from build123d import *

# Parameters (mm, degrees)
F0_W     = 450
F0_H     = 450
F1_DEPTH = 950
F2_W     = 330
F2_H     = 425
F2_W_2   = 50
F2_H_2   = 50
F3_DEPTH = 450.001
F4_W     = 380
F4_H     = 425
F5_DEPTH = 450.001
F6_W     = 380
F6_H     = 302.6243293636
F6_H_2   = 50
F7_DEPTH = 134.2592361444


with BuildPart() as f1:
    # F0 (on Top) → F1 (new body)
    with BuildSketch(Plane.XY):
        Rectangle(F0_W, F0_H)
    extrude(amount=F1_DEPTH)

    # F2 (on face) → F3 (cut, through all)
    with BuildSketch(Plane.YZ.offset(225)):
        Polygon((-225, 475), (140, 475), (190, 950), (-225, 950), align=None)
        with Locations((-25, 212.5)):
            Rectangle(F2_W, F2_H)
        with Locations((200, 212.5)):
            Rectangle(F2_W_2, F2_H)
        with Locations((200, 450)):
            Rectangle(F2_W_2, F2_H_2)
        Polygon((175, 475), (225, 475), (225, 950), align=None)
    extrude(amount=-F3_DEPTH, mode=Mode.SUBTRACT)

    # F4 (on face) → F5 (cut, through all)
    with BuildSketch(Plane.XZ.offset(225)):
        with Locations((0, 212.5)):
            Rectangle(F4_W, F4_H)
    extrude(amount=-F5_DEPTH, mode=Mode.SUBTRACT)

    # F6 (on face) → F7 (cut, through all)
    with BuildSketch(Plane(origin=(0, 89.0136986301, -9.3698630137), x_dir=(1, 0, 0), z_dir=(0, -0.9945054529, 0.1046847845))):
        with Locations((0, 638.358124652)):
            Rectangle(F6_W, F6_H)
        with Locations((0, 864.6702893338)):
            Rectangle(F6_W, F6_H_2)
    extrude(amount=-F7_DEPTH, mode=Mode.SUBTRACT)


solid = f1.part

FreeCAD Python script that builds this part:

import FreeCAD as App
import Part
import Sketcher
Q = App.Units.Quantity


def add_polygon(sketch, points):
    """Adds a closed chain of lines whose ends are joined by coincident constraints."""
    first, n = sketch.GeometryCount, len(points)
    for a, b in zip(points, points[1:] + points[:1]):
        sketch.addGeometry(Part.LineSegment(App.Vector(*a, 0), App.Vector(*b, 0)), False)
    for i in range(n):
        sketch.addConstraint(Sketcher.Constraint("Coincident", first + i, 2, first + (i + 1) % n, 1))

doc = App.newDocument("Part")
body = doc.addObject("PartDesign::Body", "Body")

# Sketch on XY plane
sketch1 = body.newObject("Sketcher::SketchObject", "Sketch")
sketch1.AttachmentSupport = (doc.getObject("XY_Plane"), [""])
sketch1.MapMode = "FlatFace"
add_polygon(sketch1, [(-225, 225), (-225, -225), (225, -225), (225, 225)])  # lines 0-3
sketch1.addConstraint([
    Sketcher.Constraint("Vertical", 0),
    Sketcher.Constraint("Horizontal", 1),
    Sketcher.Constraint("Vertical", 2),
    Sketcher.Constraint("Horizontal", 3),
    Sketcher.Constraint("Symmetric", 0, 2, 2, 2, -1, 1),
    Sketcher.Constraint("Equal", 3, 0),
    Sketcher.Constraint("DistanceX", 1, 1, 1, 2, Q("450 mm")),
])
pad1 = body.newObject("PartDesign::Pad", "Pad")
pad1.Profile = sketch1
pad1.Length = 950

# Sketch on YZ plane
sketch2 = body.newObject("Sketcher::SketchObject", "Sketch001")
sketch2.AttachmentSupport = (doc.getObject("YZ_Plane"), [""])
sketch2.MapMode = "FlatFace"
sketch2.AttachmentOffset = App.Placement(App.Vector(0, 0, 225), App.Rotation())
add_polygon(sketch2, [(-225, 475), (140, 475), (190, 950), (-225, 950)])  # lines 0-3
add_polygon(sketch2, [(-190, 425), (-190, 0), (140, 0), (140, 425)])  # lines 4-7
add_polygon(sketch2, [(175, 0), (225, 0), (225, 950), (175, 475)])  # lines 8-11
sketch2.addConstraint([
    Sketcher.Constraint("Horizontal", 0),
    Sketcher.Constraint("Horizontal", 2),
    Sketcher.Constraint("Vertical", 3),
    Sketcher.Constraint("Vertical", 4),
    Sketcher.Constraint("Horizontal", 5),
    Sketcher.Constraint("Vertical", 6),
    Sketcher.Constraint("Horizontal", 7),
    Sketcher.Constraint("Horizontal", 8),
    Sketcher.Constraint("Vertical", 9),
    Sketcher.Constraint("Vertical", 11),
    Sketcher.Constraint("Symmetric", 2, 2, 9, 2, -2),
    Sketcher.Constraint("PointOnObject", 4, 2, -1),
    Sketcher.Constraint("PointOnObject", 8, 2, -1),
    Sketcher.Constraint("Parallel", 1, 10),
    Sketcher.Constraint("Horizontal", 3, 2, 10, 2),
    Sketcher.Constraint("Vertical", 0, 2, 5, 2),
    Sketcher.Constraint("Equal", 3, 11),
    Sketcher.Constraint("DistanceX", 0, 1, 0, 2, Q("365 mm")),
    Sketcher.Constraint("DistanceX", 2, 2, 2, 1, Q("415 mm")),
    Sketcher.Constraint("DistanceX", 5, 1, 5, 2, Q("330 mm")),
    Sketcher.Constraint("DistanceY", 3, 2, 3, 1, Q("475 mm")),
    Sketcher.Constraint("DistanceY", 4, 2, 4, 1, Q("425 mm")),
    Sketcher.Constraint("DistanceX", -1, 1, 0, 2, Q("140 mm")),
])
pocket1 = body.newObject("PartDesign::Pocket", "Pocket")
pocket1.Profile = sketch2
pocket1.Type = "ThroughAll"

# Sketch on XZ plane
sketch3 = body.newObject("Sketcher::SketchObject", "Sketch002")
sketch3.AttachmentSupport = (doc.getObject("XZ_Plane"), [""])
sketch3.MapMode = "FlatFace"
sketch3.AttachmentOffset = App.Placement(App.Vector(0, 0, 225), App.Rotation())
add_polygon(sketch3, [(-190, 425), (-190, 0), (190, 0), (190, 425)])  # lines 0-3
sketch3.addConstraint([
    Sketcher.Constraint("Vertical", 0),
    Sketcher.Constraint("Horizontal", 1),
    Sketcher.Constraint("Vertical", 2),
    Sketcher.Constraint("Horizontal", 3),
    Sketcher.Constraint("Symmetric", 0, 2, 1, 2, -1, 1),
    Sketcher.Constraint("DistanceX", 1, 1, 1, 2, Q("380 mm")),
    Sketcher.Constraint("DistanceY", 0, 2, 0, 1, Q("425 mm")),
])
pocket2 = body.newObject("PartDesign::Pocket", "Pocket001")
pocket2.Profile = sketch3
pocket2.Type = "ThroughAll"

# Sketch on an angled plane
sketch4 = body.newObject("Sketcher::SketchObject", "Sketch003")
sketch4.Placement = App.Placement(App.Vector(0, 89.013699, -9.369863), App.Rotation(App.Vector(1, 0, 0), App.Vector(0, 0.104684785, 0.994505453), App.Vector(0, -0.994505453, 0.104684785), "ZXY"))
add_polygon(sketch4, [(-190, 790), (-190, 487), (190, 487), (190, 790)])  # lines 0-3
add_polygon(sketch4, [(-190, 890), (-190, 840), (190, 840), (190, 890)])  # lines 4-7
sketch4.addConstraint([
    Sketcher.Constraint("Vertical", 0),
    Sketcher.Constraint("Horizontal", 1),
    Sketcher.Constraint("Vertical", 2),
    Sketcher.Constraint("Horizontal", 3),
    Sketcher.Constraint("Vertical", 4),
    Sketcher.Constraint("Horizontal", 5),
    Sketcher.Constraint("Vertical", 6),
    Sketcher.Constraint("Horizontal", 7),
    Sketcher.Constraint("Vertical", 3, 2, 4, 2),
    Sketcher.Constraint("Vertical", 2, 2, 5, 2),
    Sketcher.Constraint("DistanceX", 1, 1, 1, 2, Q("380 mm")),
    Sketcher.Constraint("DistanceY", 4, 2, 4, 1, Q("50 mm")),
    Sketcher.Constraint("DistanceX", 0, 2, -1, 1, Q("190 mm")),
    Sketcher.Constraint("DistanceY", 3, 2, 4, 2, Q("50 mm")),
    Sketcher.Constraint("DistanceY", 0, 2, 0, 1, Q("302.624329 mm")),
    Sketcher.Constraint("DistanceY", -1, 1, 0, 2, Q("487.04596 mm")),
])
pocket3 = body.newObject("PartDesign::Pocket", "Pocket002")
pocket3.Profile = sketch4
pocket3.Type = "ThroughAll"

doc.recompute()
